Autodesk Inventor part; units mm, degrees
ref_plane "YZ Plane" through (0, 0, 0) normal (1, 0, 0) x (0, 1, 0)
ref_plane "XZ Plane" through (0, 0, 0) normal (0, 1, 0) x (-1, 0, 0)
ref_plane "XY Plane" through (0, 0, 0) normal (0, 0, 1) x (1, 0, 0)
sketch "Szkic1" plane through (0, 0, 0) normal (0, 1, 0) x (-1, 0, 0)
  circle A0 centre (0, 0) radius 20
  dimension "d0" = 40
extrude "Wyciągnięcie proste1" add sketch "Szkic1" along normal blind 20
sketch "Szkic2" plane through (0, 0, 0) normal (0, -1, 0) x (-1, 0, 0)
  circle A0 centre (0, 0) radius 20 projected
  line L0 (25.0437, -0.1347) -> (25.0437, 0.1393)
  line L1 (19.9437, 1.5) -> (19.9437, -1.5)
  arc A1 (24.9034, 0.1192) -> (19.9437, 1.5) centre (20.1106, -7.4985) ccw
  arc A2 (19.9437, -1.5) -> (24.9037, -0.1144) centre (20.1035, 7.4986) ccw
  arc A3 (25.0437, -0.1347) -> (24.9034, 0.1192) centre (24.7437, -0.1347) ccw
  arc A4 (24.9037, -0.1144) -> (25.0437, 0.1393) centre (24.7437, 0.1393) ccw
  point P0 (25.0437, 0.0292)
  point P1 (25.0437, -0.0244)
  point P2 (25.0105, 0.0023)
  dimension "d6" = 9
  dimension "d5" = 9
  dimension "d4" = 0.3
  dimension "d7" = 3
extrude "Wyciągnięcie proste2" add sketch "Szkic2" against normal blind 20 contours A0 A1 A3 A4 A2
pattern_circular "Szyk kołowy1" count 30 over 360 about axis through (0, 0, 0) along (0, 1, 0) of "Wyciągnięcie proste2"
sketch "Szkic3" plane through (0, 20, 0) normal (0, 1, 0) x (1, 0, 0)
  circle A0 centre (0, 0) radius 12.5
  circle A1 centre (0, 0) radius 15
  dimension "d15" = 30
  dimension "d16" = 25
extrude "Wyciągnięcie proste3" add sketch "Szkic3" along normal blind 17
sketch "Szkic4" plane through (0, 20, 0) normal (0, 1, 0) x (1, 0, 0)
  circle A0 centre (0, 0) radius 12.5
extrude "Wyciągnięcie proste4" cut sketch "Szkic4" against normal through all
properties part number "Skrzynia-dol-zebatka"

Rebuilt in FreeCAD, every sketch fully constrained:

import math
import FreeCAD as App
import Part
import Sketcher

V = App.Vector
Q = App.Units.Quantity

doc = App.newDocument("Part")
body = doc.addObject("PartDesign::Body", "Body")

# Sketch on XZ plane
sketch1 = doc.addObject("Sketcher::SketchObject", "Sketch")
body.addObject(sketch1)
sketch1.AttachmentSupport = (doc.XZ_Plane, [""])
sketch1.MapMode = "FlatFace"
sketch1.addGeometry(Part.Circle(V(0, 0, 0), V(0, 0, 1), 20), False)
sketch1.addConstraint([
    Sketcher.Constraint("Coincident", 0, 3, -1, 1),
    Sketcher.Constraint("Diameter", 0, Q("40 mm")),
])
pad1 = doc.addObject("PartDesign::Pad", "Pad")
body.addObject(pad1)
pad1.Profile = sketch1
pad1.Length = 20
pad1.Reversed = True

# Sketch on XZ plane
sketch2 = doc.addObject("Sketcher::SketchObject", "Sketch001")
body.addObject(sketch2)
sketch2.AttachmentSupport = (doc.XZ_Plane, [""])
sketch2.MapMode = "FlatFace"
sketch2.addGeometry([
    Part.ArcOfCircle(Part.Circle(V(0, 0, 0), V(0, 0, 1), 20), math.radians(175.7), math.radians(184.3)),  # 0
    Part.ArcOfCircle(Part.Circle(V(-20.1, -7.5, 0), V(0, 0, 1), 9), math.radians(89), math.radians(122)),  # 1
    Part.ArcOfCircle(Part.Circle(V(-24.74, -0.14, 0), V(0, 0, 1), 0.3), math.radians(122), math.radians(153)),  # 2
    Part.ArcOfCircle(Part.Circle(V(-24.74, 0.13, 0), V(0, 0, 1), 0.3), math.radians(-153), math.radians(-122)),  # 3
    Part.ArcOfCircle(Part.Circle(V(-20.11, 7.5, 0), V(0, 0, 1), 9), math.radians(-122), math.radians(-89)),  # 4
], False)
sketch2.addConstraint([
    Sketcher.Constraint("Coincident", 0, 1, 1, 1),
    Sketcher.Constraint("Tangent", 1, 2, 2, 1),
    Sketcher.Constraint("Coincident", 2, 2, 3, 1),
    Sketcher.Constraint("Tangent", 3, 2, 4, 1),
    Sketcher.Constraint("Coincident", 4, 2, 0, 2),
    Sketcher.Constraint("Coincident", 0, 3, -1, 1),
    Sketcher.Constraint("Equal", 2, 3),
    Sketcher.Constraint("Equal", 1, 4),
    Sketcher.Constraint("Vertical", 2, 3, 3, 3),
    Sketcher.Constraint("Vertical", 0, 1, 4, 2),
    Sketcher.Constraint("Radius", 1, Q("9 mm")),
    Sketcher.Constraint("Radius", 2, Q("0.3 mm")),
    Sketcher.Constraint("Radius", 0, Q("20 mm")),
    Sketcher.Constraint("DistanceY", 4, 2, 0, 1, Q("3 mm")),
    Sketcher.Constraint("DistanceX", 3, 3, 0, 1, Q("4.8 mm")),
    Sketcher.Constraint("DistanceX", 2, 2, 4, 3, Q("4.9 mm")),
    Sketcher.Constraint("DistanceY", 2, 3, 3, 2, Q("0.02 mm")),
])
pad2 = doc.addObject("PartDesign::Pad", "Pad001")
body.addObject(pad2)
pad2.Profile = sketch2
pad2.Length = 20
pad2.Reversed = True
doc.recompute()

polarpattern = doc.addObject("PartDesign::PolarPattern", "PolarPattern")
body.addObject(polarpattern)
polarpattern.Originals = [pad2]
polarpattern.Axis = (doc.Y_Axis, [""])
polarpattern.Angle = 360
polarpattern.Occurrences = 30
body.Tip = polarpattern

# Sketch on XZ plane
sketch3 = doc.addObject("Sketcher::SketchObject", "Sketch002")
body.addObject(sketch3)
sketch3.AttachmentSupport = (doc.XZ_Plane, [""])
sketch3.MapMode = "FlatFace"
sketch3.AttachmentOffset = App.Placement(V(0, 0, -20), App.Rotation())
sketch3.addGeometry([
    Part.Circle(V(0, 0, 0), V(0, 0, 1), 15),
    Part.Circle(V(0, 0, 0), V(0, 0, 1), 12),
], False)
sketch3.addConstraint([
    Sketcher.Constraint("Coincident", 0, 3, -1, 1),
    Sketcher.Constraint("Coincident", 1, 3, -1, 1),
    Sketcher.Constraint("Diameter", 0, Q("30 mm")),
    Sketcher.Constraint("Diameter", 1, Q("25 mm")),
])
pad3 = doc.addObject("PartDesign::Pad", "Pad002")
body.addObject(pad3)
pad3.Profile = sketch3
pad3.Length = 17
pad3.Reversed = True

# Sketch on XZ plane
sketch4 = doc.addObject("Sketcher::SketchObject", "Sketch003")
body.addObject(sketch4)
sketch4.AttachmentSupport = (doc.XZ_Plane, [""])
sketch4.MapMode = "FlatFace"
sketch4.AttachmentOffset = App.Placement(V(0, 0, -20), App.Rotation())
sketch4.addGeometry(Part.Circle(V(0, 0, 0), V(0, 0, 1), 12), False)
sketch4.addConstraint([
    Sketcher.Constraint("Coincident", 0, 3, -1, 1),
    Sketcher.Constraint("Diameter", 0, Q("25 mm")),
])
pocket1 = doc.addObject("PartDesign::Pocket", "Pocket")
body.addObject(pocket1)
pocket1.Profile = sketch4
pocket1.Type = "ThroughAll"
pocket1.Reversed = True

doc.recompute()
